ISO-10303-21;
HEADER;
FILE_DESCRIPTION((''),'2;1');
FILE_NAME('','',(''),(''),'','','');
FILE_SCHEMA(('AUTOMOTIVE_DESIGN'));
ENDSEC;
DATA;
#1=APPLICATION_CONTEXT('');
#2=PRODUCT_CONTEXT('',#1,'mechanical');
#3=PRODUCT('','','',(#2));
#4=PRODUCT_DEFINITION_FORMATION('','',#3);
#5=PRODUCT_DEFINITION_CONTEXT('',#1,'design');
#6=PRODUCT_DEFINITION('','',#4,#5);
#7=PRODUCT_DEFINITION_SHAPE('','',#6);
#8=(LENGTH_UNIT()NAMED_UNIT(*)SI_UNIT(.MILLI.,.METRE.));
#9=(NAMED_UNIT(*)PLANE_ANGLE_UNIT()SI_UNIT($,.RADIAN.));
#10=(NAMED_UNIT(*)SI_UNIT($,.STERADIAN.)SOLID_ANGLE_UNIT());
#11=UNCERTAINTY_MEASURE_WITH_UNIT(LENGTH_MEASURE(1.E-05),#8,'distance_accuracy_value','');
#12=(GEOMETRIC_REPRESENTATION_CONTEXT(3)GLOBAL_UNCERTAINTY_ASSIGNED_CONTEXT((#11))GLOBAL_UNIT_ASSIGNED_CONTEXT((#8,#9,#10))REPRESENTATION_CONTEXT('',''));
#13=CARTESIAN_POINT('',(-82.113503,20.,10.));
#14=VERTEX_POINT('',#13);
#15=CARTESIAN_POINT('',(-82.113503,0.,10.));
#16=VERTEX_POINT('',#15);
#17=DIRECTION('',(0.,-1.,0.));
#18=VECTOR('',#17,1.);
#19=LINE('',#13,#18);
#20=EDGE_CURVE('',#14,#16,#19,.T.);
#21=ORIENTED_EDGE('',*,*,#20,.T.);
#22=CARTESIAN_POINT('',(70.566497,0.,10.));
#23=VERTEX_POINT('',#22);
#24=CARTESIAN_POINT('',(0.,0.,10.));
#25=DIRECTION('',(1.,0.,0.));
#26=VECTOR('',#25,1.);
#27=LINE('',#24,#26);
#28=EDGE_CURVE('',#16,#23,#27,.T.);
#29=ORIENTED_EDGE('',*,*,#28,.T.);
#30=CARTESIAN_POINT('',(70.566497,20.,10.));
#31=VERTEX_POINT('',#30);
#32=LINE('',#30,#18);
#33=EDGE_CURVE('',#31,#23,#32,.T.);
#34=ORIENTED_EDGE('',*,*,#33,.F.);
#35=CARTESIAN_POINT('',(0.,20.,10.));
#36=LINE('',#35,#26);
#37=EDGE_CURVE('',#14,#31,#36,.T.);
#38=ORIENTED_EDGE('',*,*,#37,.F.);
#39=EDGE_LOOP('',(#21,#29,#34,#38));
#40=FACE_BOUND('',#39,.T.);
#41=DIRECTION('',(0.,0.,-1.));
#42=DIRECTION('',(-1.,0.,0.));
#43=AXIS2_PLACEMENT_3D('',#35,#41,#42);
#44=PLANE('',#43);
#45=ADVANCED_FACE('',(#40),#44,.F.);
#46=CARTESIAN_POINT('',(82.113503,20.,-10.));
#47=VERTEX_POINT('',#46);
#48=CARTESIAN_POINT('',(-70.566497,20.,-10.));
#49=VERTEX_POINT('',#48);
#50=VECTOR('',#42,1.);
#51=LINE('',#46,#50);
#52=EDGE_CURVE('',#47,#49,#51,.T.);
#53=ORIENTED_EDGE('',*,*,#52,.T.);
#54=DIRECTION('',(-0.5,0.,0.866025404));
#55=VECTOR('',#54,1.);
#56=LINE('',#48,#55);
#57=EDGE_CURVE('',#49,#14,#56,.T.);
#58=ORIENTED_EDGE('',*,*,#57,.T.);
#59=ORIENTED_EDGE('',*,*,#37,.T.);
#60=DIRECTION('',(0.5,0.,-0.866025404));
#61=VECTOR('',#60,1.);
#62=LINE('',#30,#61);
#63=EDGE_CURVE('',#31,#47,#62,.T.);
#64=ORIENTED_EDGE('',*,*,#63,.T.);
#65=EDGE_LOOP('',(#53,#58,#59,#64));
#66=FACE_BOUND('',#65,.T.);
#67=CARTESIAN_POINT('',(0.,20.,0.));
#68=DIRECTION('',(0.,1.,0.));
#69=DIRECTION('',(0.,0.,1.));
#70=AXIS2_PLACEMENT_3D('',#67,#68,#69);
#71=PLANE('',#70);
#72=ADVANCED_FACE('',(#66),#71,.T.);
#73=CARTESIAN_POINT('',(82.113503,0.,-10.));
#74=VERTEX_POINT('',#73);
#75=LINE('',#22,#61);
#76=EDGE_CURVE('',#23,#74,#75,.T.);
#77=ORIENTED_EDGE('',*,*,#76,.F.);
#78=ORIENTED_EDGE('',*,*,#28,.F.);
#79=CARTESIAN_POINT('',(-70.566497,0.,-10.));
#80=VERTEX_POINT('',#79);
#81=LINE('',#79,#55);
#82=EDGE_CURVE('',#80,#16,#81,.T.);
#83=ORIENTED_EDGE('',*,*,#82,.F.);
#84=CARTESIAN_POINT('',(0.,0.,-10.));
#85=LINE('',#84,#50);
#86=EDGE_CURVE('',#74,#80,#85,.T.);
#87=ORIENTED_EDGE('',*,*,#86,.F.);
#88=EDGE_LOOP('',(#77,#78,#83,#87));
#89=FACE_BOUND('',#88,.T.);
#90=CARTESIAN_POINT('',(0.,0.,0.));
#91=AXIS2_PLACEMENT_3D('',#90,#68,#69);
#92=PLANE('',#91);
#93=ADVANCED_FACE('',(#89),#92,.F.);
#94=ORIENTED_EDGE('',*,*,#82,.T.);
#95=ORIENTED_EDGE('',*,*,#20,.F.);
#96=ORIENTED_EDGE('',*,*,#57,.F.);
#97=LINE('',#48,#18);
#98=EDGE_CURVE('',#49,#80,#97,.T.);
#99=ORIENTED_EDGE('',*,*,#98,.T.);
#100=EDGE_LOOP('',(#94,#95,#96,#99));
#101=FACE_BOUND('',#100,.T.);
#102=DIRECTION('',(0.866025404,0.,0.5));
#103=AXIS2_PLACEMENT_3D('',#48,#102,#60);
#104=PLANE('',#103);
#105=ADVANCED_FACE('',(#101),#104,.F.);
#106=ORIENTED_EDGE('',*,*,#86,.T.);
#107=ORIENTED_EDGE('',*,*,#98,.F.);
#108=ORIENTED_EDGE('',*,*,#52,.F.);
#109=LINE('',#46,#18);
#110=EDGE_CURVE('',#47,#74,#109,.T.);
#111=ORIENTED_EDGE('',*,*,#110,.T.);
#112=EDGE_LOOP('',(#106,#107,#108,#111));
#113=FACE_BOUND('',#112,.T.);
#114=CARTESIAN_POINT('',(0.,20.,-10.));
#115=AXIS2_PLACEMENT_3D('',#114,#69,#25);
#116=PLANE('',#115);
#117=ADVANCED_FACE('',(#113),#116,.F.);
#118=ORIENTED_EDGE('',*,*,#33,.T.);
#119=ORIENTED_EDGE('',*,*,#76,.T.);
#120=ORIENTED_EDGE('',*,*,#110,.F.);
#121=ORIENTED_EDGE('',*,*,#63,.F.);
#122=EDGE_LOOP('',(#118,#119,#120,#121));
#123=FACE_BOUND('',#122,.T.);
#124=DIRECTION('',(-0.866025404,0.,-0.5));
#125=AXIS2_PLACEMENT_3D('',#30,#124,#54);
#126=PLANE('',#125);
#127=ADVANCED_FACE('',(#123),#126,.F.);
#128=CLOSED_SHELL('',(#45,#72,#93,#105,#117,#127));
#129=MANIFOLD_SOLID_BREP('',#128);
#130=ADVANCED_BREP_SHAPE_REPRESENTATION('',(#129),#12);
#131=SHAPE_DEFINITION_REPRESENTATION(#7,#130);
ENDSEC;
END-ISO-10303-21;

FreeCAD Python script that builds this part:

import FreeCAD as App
import Part
import Sketcher
from FreeCAD import Vector
Q = App.Units.Quantity


def add_polygon(sketch, points):
    """Adds a closed chain of lines whose ends are joined by coincident constraints."""
    first, n = sketch.GeometryCount, len(points)
    for a, b in zip(points, points[1:] + points[:1]):
        sketch.addGeometry(Part.LineSegment(App.Vector(*a, 0), App.Vector(*b, 0)), False)
    for i in range(n):
        sketch.addConstraint(Sketcher.Constraint("Coincident", first + i, 2, first + (i + 1) % n, 1))

doc = App.newDocument("Part")
body = doc.addObject("PartDesign::Body", "Body")

# Sketch on XZ plane
sketch1 = body.newObject("Sketcher::SketchObject", "Sketch")
sketch1.AttachmentSupport = (doc.getObject("XZ_Plane"), [""])
sketch1.MapMode = "FlatFace"
add_polygon(sketch1, [(70.566497, 10), (82.113503, -10), (-70.566497, -10), (-82.113503, 10)])  # lines 0-3
sketch1.addConstraint(Sketcher.Constraint("Horizontal", 1))
sketch1.addConstraint(Sketcher.Constraint("Horizontal", 3))
sketch1.addConstraint(Sketcher.Constraint("Symmetric", 0, 2, 2, 2, -1, 1))
sketch1.addConstraint(Sketcher.Constraint("Parallel", 0, 2))
sketch1.addConstraint(Sketcher.Constraint("Angle", 0, Q("-60 deg")))
sketch1.addConstraint(Sketcher.Constraint("DistanceY", 0, 2, -1, 1, 10.0))
sketch1.addConstraint(Sketcher.Constraint("DistanceX", 1, 2, 1, 1, 152.68))
pad1 = body.newObject("PartDesign::Pad", "Pad")
pad1.Profile = sketch1
pad1.Length = 20
pad1.Reversed = True

doc.recompute()
